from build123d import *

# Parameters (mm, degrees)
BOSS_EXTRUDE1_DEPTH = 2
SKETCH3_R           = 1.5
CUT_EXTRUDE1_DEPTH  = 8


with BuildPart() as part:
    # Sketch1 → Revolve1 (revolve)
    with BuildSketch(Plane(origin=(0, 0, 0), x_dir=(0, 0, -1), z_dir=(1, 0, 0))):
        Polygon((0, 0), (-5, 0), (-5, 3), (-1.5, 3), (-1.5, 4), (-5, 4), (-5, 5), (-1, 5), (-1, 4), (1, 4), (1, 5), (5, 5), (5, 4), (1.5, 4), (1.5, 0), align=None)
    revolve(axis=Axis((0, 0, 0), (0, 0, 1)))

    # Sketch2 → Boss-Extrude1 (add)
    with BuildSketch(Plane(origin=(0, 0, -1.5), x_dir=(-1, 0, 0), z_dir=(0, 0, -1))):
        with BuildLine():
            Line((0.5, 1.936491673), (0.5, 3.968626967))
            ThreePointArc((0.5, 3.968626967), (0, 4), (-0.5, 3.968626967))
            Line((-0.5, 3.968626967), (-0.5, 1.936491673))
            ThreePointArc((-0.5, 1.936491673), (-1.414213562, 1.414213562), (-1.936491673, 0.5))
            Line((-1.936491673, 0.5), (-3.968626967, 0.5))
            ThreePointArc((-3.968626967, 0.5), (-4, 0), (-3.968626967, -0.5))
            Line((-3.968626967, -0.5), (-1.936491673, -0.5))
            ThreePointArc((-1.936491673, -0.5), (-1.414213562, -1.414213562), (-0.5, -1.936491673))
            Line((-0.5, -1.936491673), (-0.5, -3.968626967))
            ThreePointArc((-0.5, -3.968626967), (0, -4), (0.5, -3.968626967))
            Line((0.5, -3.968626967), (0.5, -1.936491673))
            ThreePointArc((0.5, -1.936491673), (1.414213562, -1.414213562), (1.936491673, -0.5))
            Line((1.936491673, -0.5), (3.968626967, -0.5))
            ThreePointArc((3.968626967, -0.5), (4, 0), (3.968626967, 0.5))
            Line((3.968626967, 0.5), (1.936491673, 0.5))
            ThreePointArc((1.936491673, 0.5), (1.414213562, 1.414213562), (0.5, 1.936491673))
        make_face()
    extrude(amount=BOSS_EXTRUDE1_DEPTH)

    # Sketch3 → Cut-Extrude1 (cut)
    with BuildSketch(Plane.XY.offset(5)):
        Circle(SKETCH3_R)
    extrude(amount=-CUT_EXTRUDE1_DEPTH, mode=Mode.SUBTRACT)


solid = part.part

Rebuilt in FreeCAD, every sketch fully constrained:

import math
import FreeCAD as App
import Part
import Sketcher
from FreeCAD import Vector
Q = App.Units.Quantity

doc = App.newDocument("Part")
body = doc.addObject("PartDesign::Body", "Body")

# Sketch on YZ plane
sketch1 = body.newObject("Sketcher::SketchObject", "Sketch")
sketch1.AttachmentSupport = (doc.getObject("YZ_Plane"), [""])
sketch1.MapMode = "FlatFace"
sketch1.addGeometry([
    Part.LineSegment(Vector(0, 5, 0), Vector(0, -1.5, 0)),  # 0
    Part.LineSegment(Vector(0, -1.5, 0), Vector(4, -1.5, 0)),  # 1
    Part.LineSegment(Vector(4, -1.5, 0), Vector(4, -5, 0)),  # 2
    Part.LineSegment(Vector(4, -5, 0), Vector(5, -5, 0)),  # 3
    Part.LineSegment(Vector(5, -5, 0), Vector(5, -1, 0)),  # 4
    Part.LineSegment(Vector(5, -1, 0), Vector(4, -1, 0)),  # 5
    Part.LineSegment(Vector(4, -1, 0), Vector(4, 1, 0)),  # 6
    Part.LineSegment(Vector(4, 1, 0), Vector(5, 1, 0)),  # 7
    Part.LineSegment(Vector(5, 1, 0), Vector(5, 5, 0)),  # 8
    Part.LineSegment(Vector(5, 5, 0), Vector(4, 5, 0)),  # 9
    Part.LineSegment(Vector(4, 5, 0), Vector(4, 1.5, 0)),  # 10
    Part.LineSegment(Vector(4, 1.5, 0), Vector(3, 1.5, 0)),  # 11
    Part.LineSegment(Vector(3, 1.5, 0), Vector(3, 5, 0)),  # 12
    Part.LineSegment(Vector(3, 5, 0), Vector(0, 5, 0)),  # 13
], False)
sketch1.addConstraint([
    Sketcher.Constraint("Coincident", 0, 2, 1, 1),
    Sketcher.Constraint("Coincident", 1, 2, 2, 1),
    Sketcher.Constraint("Coincident", 2, 2, 3, 1),
    Sketcher.Constraint("Coincident", 3, 2, 4, 1),
    Sketcher.Constraint("Coincident", 4, 2, 5, 1),
    Sketcher.Constraint("Coincident", 5, 2, 6, 1),
    Sketcher.Constraint("Coincident", 6, 2, 7, 1),
    Sketcher.Constraint("Coincident", 7, 2, 8, 1),
    Sketcher.Constraint("Coincident", 8, 2, 9, 1),
    Sketcher.Constraint("Coincident", 9, 2, 10, 1),
    Sketcher.Constraint("Coincident", 10, 2, 11, 1),
    Sketcher.Constraint("Coincident", 11, 2, 12, 1),
    Sketcher.Constraint("Coincident", 12, 2, 13, 1),
    Sketcher.Constraint("Coincident", 13, 2, 0, 1),
    Sketcher.Constraint("Vertical", 0),
    Sketcher.Constraint("Horizontal", 1),
    Sketcher.Constraint("Vertical", 2),
    Sketcher.Constraint("Horizontal", 3),
    Sketcher.Constraint("Vertical", 4),
    Sketcher.Constraint("Horizontal", 5),
    Sketcher.Constraint("Vertical", 6),
    Sketcher.Constraint("Horizontal", 7),
    Sketcher.Constraint("Vertical", 8),
    Sketcher.Constraint("Horizontal", 9),
    Sketcher.Constraint("Vertical", 10),
    Sketcher.Constraint("Horizontal", 11),
    Sketcher.Constraint("Vertical", 12),
    Sketcher.Constraint("Horizontal", 13),
    Sketcher.Constraint("Symmetric", 4, 2, 7, 2, -1),
    Sketcher.Constraint("Symmetric", 2, 2, 9, 2, -1),
    Sketcher.Constraint("PointOnObject", 0, 2, -2),
    Sketcher.Constraint("Horizontal", 9, 2, 12, 2),
    Sketcher.Constraint("Vertical", 2, 2, 5, 2),
    Sketcher.Constraint("Equal", 9, 11),
    Sketcher.Constraint("Equal", 1, 4),
    Sketcher.Constraint("Equal", 2, 10),
    Sketcher.Constraint("DistanceX", 1, 1, 1, 2, Q("4 mm")),
    Sketcher.Constraint("DistanceX", 3, 1, 3, 2, Q("1 mm")),
    Sketcher.Constraint("DistanceY", 6, 1, 6, 2, Q("2 mm")),
    Sketcher.Constraint("DistanceY", 0, 2, 0, 1, Q("6.5 mm")),
])
revolution = body.newObject("PartDesign::Revolution", "Revolution")
revolution.Profile = sketch1
revolution.ReferenceAxis = (sketch1, ["V_Axis"])
revolution.Angle = 360

# Sketch on XY plane
sketch2 = body.newObject("Sketcher::SketchObject", "Sketch001")
sketch2.AttachmentSupport = (doc.getObject("XY_Plane"), [""])
sketch2.MapMode = "FlatFace"
sketch2.AttachmentOffset = App.Placement(Vector(0, 0, -1.5), App.Rotation())
sketch2.addGeometry([
    Part.LineSegment(Vector(-0.5, 1.936492, 0), Vector(-0.5, 3.968627, 0)),  # 0
    Part.ArcOfCircle(Part.Circle(Vector(0, 0, 0), Vector(0, 0, 1), 4), math.radians(82.819244), math.radians(97.180756)),  # 1
    Part.LineSegment(Vector(0.5, 3.968627, 0), Vector(0.5, 1.936492, 0)),  # 2
    Part.ArcOfCircle(Part.Circle(Vector(0, 0, 0), Vector(0, 0, 1), 2), math.radians(14.477512), math.radians(75.522488)),  # 3
    Part.LineSegment(Vector(1.936492, 0.5, 0), Vector(3.968627, 0.5, 0)),  # 4
    Part.ArcOfCircle(Part.Circle(Vector(0, 0, 0), Vector(0, 0, 1), 4), math.radians(-7.180756), math.radians(7.180756)),  # 5
    Part.LineSegment(Vector(3.968627, -0.5, 0), Vector(1.936492, -0.5, 0)),  # 6
    Part.ArcOfCircle(Part.Circle(Vector(0, 0, 0), Vector(0, 0, 1), 2), math.radians(-75.522488), math.radians(-14.477512)),  # 7
    Part.LineSegment(Vector(0.5, -1.936492, 0), Vector(0.5, -3.968627, 0)),  # 8
    Part.ArcOfCircle(Part.Circle(Vector(0, 0, 0), Vector(0, 0, 1), 4), math.radians(-97.180756), math.radians(-82.819244)),  # 9
    Part.LineSegment(Vector(-0.5, -3.968627, 0), Vector(-0.5, -1.936492, 0)),  # 10
    Part.ArcOfCircle(Part.Circle(Vector(0, 0, 0), Vector(0, 0, 1), 2), math.radians(-165.522488), math.radians(-104.477512)),  # 11
    Part.LineSegment(Vector(-1.936492, -0.5, 0), Vector(-3.968627, -0.5, 0)),  # 12
    Part.ArcOfCircle(Part.Circle(Vector(0, 0, 0), Vector(0, 0, 1), 4), math.radians(172.819244), math.radians(187.180756)),  # 13
    Part.LineSegment(Vector(-3.968627, 0.5, 0), Vector(-1.936492, 0.5, 0)),  # 14
    Part.ArcOfCircle(Part.Circle(Vector(0, 0, 0), Vector(0, 0, 1), 2), math.radians(104.477512), math.radians(165.522488)),  # 15
], False)
sketch2.addConstraint([
    Sketcher.Constraint("Coincident", 0, 2, 1, 2),
    Sketcher.Constraint("Coincident", 1, 1, 2, 1),
    Sketcher.Constraint("Coincident", 2, 2, 3, 2),
    Sketcher.Constraint("Coincident", 3, 1, 4, 1),
    Sketcher.Constraint("Coincident", 4, 2, 5, 2),
    Sketcher.Constraint("Coincident", 5, 1, 6, 1),
    Sketcher.Constraint("Coincident", 6, 2, 7, 2),
    Sketcher.Constraint("Coincident", 7, 1, 8, 1),
    Sketcher.Constraint("Coincident", 8, 2, 9, 2),
    Sketcher.Constraint("Coincident", 9, 1, 10, 1),
    Sketcher.Constraint("Coincident", 10, 2, 11, 2),
    Sketcher.Constraint("Coincident", 11, 1, 12, 1),
    Sketcher.Constraint("Coincident", 12, 2, 13, 2),
    Sketcher.Constraint("Coincident", 13, 1, 14, 1),
    Sketcher.Constraint("Coincident", 14, 2, 15, 2),
    Sketcher.Constraint("Coincident", 15, 1, 0, 1),
    Sketcher.Constraint("Vertical", 0),
    Sketcher.Constraint("Vertical", 2),
    Sketcher.Constraint("Horizontal", 4),
    Sketcher.Constraint("Horizontal", 6),
    Sketcher.Constraint("Vertical", 8),
    Sketcher.Constraint("Vertical", 10),
    Sketcher.Constraint("Horizontal", 12),
    Sketcher.Constraint("Horizontal", 14),
    Sketcher.Constraint("Coincident", 1, 3, -1, 1),
    Sketcher.Constraint("Coincident", 3, 3, -1, 1),
    Sketcher.Constraint("Coincident", 5, 3, -1, 1),
    Sketcher.Constraint("Coincident", 7, 3, -1, 1),
    Sketcher.Constraint("Coincident", 9, 3, -1, 1),
    Sketcher.Constraint("Coincident", 11, 3, -1, 1),
    Sketcher.Constraint("Coincident", 13, 3, -1, 1),
    Sketcher.Constraint("Coincident", 15, 3, -1, 1),
    Sketcher.Constraint("Equal", 1, 5),
    Sketcher.Constraint("Equal", 3, 7),
    Sketcher.Constraint("Equal", 5, 9),
    Sketcher.Constraint("Equal", 7, 11),
    Sketcher.Constraint("Equal", 9, 13),
    Sketcher.Constraint("Equal", 11, 15),
    Sketcher.Constraint("Horizontal", 0, 2, 1, 1),
    Sketcher.Constraint("Horizontal", 8, 2, 9, 1),
    Sketcher.Constraint("Horizontal", 6, 2, 11, 1),
    Sketcher.Constraint("Horizontal", 4, 2, 13, 1),
    Sketcher.Constraint("Vertical", 4, 2, 5, 1),
    Sketcher.Constraint("Vertical", 2, 2, 7, 1),
    Sketcher.Constraint("Equal", 14, 0),
    Sketcher.Constraint("Radius", 1, Q("4 mm")),
    Sketcher.Constraint("Radius", 3, Q("2 mm")),
    Sketcher.Constraint("DistanceX", 0, 2, 1, 1, Q("1 mm")),
])
pad1 = body.newObject("PartDesign::Pad", "Pad")
pad1.Profile = sketch2
pad1.Length = 2
pad1.Reversed = True

# Sketch on XY plane
sketch3 = body.newObject("Sketcher::SketchObject", "Sketch002")
sketch3.AttachmentSupport = (doc.getObject("XY_Plane"), [""])
sketch3.MapMode = "FlatFace"
sketch3.AttachmentOffset = App.Placement(Vector(0, 0, 5), App.Rotation())
sketch3.addGeometry(Part.Circle(Vector(0, 0, 0), Vector(0, 0, 1), 1.5), False)
sketch3.addConstraint([
    Sketcher.Constraint("Coincident", 0, 3, -1, 1),
    Sketcher.Constraint("Diameter", 0, Q("3 mm")),
])
pocket1 = body.newObject("PartDesign::Pocket", "Pocket")
pocket1.Profile = sketch3
pocket1.Length = 8

doc.recompute()
